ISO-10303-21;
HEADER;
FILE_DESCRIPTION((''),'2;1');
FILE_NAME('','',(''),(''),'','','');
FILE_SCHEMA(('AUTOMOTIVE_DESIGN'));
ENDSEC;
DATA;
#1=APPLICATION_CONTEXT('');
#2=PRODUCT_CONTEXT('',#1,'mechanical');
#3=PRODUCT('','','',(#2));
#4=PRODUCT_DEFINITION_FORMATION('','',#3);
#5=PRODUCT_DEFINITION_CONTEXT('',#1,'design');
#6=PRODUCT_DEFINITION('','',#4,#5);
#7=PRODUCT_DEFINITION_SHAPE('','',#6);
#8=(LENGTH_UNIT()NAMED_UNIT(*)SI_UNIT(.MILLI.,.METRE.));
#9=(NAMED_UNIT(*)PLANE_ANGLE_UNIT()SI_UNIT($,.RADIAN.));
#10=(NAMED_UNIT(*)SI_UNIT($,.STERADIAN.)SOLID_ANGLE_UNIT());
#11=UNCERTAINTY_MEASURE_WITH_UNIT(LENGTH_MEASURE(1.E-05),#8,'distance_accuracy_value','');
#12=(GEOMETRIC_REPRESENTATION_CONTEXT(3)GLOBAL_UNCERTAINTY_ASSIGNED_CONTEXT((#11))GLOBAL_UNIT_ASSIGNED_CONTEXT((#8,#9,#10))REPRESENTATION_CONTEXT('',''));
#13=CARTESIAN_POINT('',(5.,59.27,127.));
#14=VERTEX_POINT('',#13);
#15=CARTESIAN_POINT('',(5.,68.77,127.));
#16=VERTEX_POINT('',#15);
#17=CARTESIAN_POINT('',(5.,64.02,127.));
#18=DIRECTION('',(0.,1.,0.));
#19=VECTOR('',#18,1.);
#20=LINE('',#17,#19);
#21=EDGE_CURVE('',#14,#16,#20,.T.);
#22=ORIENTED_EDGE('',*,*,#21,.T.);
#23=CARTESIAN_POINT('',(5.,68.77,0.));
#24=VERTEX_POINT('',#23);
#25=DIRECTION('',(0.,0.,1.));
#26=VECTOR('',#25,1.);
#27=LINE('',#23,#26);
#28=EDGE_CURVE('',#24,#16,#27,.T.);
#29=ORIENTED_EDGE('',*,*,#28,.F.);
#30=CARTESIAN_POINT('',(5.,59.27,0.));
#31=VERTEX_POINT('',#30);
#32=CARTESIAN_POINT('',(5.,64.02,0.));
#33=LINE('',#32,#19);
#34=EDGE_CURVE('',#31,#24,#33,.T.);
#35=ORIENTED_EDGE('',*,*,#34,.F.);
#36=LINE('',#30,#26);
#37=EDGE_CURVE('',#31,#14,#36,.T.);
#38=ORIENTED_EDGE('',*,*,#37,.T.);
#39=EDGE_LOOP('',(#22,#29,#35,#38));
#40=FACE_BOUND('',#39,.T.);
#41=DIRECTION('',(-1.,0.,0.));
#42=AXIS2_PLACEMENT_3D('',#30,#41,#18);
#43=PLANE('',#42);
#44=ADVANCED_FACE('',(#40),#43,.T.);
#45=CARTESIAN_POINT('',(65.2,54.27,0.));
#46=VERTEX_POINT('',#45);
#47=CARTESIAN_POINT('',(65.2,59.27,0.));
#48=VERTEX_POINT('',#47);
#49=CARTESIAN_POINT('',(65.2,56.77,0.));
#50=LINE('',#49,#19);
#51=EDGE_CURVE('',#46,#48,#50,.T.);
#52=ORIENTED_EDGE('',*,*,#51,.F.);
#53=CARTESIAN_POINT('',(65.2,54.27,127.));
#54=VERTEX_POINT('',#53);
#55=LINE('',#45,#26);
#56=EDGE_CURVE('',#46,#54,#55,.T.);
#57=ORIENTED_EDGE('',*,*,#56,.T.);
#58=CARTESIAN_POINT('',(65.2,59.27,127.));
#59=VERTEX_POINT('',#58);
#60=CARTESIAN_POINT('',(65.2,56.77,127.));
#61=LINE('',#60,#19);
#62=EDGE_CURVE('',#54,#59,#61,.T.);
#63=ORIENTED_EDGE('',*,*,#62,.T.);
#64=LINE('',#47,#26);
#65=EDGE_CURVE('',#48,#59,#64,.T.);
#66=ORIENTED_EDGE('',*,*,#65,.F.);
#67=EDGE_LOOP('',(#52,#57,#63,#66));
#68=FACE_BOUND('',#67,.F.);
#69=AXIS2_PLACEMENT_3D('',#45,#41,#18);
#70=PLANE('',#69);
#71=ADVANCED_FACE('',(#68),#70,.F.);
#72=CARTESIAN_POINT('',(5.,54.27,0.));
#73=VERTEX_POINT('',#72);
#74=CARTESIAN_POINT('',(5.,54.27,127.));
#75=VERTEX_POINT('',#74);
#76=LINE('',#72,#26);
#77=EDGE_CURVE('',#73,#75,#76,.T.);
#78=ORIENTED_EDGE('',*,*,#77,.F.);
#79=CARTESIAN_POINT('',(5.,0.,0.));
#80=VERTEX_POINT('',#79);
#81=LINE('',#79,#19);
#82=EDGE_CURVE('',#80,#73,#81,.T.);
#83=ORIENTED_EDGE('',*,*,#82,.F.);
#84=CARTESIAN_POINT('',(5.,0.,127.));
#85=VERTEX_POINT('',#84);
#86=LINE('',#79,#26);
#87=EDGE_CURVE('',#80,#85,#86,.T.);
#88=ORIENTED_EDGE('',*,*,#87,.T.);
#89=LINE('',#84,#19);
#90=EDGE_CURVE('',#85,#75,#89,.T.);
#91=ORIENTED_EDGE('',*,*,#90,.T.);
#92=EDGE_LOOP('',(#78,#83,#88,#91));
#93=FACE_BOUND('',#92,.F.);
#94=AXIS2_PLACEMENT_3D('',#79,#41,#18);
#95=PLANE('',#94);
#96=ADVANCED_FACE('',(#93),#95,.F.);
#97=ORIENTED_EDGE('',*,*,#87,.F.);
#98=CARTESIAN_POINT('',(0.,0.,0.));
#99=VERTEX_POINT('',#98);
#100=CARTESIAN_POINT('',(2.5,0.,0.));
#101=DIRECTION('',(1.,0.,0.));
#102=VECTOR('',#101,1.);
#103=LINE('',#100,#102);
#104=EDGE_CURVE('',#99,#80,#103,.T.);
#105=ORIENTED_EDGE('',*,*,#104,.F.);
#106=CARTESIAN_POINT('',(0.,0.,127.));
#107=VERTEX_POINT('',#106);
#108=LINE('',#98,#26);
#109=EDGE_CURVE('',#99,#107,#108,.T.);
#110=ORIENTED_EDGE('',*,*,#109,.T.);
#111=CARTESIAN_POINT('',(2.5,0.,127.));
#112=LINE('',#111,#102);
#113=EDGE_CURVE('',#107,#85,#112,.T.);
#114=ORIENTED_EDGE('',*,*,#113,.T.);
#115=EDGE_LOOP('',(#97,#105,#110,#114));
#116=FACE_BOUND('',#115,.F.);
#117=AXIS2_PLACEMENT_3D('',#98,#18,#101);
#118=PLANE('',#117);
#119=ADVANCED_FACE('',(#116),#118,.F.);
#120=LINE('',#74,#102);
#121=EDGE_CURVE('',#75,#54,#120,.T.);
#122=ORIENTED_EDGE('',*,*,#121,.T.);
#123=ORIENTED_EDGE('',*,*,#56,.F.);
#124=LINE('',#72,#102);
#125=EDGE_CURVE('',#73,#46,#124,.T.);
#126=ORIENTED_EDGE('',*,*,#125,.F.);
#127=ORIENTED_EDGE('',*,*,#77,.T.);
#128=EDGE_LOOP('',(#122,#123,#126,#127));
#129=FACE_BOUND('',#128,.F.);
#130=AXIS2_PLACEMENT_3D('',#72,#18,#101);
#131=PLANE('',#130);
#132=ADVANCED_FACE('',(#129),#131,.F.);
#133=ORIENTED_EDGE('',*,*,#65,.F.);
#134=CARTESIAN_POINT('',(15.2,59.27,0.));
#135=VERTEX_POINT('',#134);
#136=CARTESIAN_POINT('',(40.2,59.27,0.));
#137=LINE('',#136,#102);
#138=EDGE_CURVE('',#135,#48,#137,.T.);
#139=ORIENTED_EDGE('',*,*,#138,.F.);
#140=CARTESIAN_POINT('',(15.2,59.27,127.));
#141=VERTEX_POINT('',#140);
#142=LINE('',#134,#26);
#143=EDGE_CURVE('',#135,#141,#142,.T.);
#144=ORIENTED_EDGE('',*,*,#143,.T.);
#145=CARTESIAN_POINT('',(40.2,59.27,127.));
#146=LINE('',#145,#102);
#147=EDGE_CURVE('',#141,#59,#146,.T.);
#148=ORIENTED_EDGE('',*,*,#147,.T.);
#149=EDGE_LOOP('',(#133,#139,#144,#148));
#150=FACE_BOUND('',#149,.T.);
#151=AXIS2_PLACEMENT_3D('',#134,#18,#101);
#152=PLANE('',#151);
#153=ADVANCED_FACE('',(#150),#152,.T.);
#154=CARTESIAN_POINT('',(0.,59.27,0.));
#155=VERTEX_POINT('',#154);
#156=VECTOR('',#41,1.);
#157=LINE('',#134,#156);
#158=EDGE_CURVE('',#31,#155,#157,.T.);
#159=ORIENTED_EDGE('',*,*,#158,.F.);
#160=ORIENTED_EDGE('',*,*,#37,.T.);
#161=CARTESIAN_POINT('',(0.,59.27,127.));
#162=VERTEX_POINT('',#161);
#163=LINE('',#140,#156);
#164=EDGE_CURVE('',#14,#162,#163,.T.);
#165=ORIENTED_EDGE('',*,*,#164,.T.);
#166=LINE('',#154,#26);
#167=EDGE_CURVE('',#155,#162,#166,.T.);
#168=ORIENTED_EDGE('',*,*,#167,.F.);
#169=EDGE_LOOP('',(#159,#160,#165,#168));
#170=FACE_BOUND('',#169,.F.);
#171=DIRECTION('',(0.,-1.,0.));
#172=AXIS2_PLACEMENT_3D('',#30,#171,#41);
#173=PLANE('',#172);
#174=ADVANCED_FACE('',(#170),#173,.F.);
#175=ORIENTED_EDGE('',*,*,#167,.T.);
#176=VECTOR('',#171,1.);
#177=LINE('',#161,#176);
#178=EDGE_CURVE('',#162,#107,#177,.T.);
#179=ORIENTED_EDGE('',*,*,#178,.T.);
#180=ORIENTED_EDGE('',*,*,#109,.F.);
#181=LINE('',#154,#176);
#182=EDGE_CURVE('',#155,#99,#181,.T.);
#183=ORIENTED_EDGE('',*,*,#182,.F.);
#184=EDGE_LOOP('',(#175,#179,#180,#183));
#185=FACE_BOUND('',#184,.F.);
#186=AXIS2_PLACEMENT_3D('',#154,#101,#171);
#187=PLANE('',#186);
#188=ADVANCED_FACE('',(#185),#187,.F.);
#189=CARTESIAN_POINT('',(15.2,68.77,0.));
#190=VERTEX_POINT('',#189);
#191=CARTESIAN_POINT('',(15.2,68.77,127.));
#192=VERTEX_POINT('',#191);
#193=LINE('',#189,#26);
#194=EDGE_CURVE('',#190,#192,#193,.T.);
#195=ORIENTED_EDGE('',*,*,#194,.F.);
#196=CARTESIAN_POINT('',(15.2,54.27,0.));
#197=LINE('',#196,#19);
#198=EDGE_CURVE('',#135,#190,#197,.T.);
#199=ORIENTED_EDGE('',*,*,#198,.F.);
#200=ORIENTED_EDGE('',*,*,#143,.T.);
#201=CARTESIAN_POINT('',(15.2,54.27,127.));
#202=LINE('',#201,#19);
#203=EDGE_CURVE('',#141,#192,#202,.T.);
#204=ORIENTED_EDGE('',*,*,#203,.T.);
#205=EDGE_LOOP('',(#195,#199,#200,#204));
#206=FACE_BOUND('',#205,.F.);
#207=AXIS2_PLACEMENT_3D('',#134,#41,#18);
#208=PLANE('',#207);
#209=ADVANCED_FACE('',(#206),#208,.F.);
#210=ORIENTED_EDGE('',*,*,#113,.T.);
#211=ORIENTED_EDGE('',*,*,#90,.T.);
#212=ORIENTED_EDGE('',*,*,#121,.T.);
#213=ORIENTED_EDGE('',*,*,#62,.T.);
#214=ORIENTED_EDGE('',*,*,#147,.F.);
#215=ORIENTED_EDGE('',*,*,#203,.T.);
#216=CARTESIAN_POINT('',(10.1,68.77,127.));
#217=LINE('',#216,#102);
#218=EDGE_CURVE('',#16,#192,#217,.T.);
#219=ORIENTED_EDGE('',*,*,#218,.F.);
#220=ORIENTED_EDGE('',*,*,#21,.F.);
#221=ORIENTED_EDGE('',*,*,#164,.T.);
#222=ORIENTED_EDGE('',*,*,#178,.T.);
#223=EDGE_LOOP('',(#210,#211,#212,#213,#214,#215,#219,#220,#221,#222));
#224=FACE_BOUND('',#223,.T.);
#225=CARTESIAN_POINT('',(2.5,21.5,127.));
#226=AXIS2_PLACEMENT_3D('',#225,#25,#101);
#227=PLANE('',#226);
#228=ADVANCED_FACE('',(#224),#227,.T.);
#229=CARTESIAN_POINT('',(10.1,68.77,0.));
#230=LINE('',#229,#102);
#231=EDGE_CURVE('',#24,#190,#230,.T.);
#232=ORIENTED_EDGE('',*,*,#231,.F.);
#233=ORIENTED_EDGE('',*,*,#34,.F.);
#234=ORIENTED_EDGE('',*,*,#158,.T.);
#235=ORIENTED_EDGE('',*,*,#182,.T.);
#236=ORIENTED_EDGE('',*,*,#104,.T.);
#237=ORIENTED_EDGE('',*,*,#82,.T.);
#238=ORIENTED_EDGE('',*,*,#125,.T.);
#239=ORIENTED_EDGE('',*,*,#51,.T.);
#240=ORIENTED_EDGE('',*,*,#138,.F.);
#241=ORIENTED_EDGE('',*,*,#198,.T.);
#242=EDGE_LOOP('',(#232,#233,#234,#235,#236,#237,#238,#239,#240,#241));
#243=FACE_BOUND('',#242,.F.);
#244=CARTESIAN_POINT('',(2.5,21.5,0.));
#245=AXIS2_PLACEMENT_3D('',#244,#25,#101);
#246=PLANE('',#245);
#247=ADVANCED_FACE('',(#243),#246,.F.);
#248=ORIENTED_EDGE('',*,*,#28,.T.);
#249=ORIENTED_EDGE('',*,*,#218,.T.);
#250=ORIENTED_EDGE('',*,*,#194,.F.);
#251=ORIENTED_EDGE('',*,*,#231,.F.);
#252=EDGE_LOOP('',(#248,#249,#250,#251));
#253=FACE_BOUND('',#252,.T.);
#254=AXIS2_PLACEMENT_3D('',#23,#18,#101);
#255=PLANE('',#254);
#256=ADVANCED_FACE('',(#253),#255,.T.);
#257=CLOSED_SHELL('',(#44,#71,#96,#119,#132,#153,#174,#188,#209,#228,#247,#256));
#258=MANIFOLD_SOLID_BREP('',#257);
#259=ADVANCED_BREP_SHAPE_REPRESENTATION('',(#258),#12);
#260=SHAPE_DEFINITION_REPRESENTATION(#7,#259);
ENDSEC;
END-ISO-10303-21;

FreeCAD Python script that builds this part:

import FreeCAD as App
import Part
import Sketcher
Q = App.Units.Quantity

doc = App.newDocument("Part")
body = doc.addObject("PartDesign::Body", "Body")

sketch1 = doc.addObject("Sketcher::SketchObject", "Sketch")
body.addObject(sketch1)
sketch1.AttachmentSupport = (doc.XY_Plane, [""])
sketch1.MapMode = "FlatFace"
sketch1.addGeometry(Part.LineSegment(App.Vector(0, 0, 0), App.Vector(5, 0, 0)), False)
sketch1.addGeometry(Part.LineSegment(App.Vector(5, 0, 0), App.Vector(5, 54, 0)), False)
sketch1.addGeometry(Part.LineSegment(App.Vector(5, 54, 0), App.Vector(65, 54, 0)), False)
sketch1.addGeometry(Part.LineSegment(App.Vector(65, 54, 0), App.Vector(65, 59, 0)), False)
sketch1.addGeometry(Part.LineSegment(App.Vector(65, 59, 0), App.Vector(15, 59, 0)), False)
sketch1.addGeometry(Part.LineSegment(App.Vector(15, 59, 0), App.Vector(15, 69, 0)), False)
sketch1.addGeometry(Part.LineSegment(App.Vector(15, 69, 0), App.Vector(5, 69, 0)), False)
sketch1.addGeometry(Part.LineSegment(App.Vector(5, 69, 0), App.Vector(5, 59, 0)), False)
sketch1.addGeometry(Part.LineSegment(App.Vector(5, 59, 0), App.Vector(0, 59, 0)), False)
sketch1.addGeometry(Part.LineSegment(App.Vector(0, 59, 0), App.Vector(0, 0, 0)), False)
sketch1.addConstraint(Sketcher.Constraint("Coincident", 0, 2, 1, 1))
sketch1.addConstraint(Sketcher.Constraint("Coincident", 1, 2, 2, 1))
sketch1.addConstraint(Sketcher.Constraint("Coincident", 2, 2, 3, 1))
sketch1.addConstraint(Sketcher.Constraint("Coincident", 3, 2, 4, 1))
sketch1.addConstraint(Sketcher.Constraint("Coincident", 4, 2, 5, 1))
sketch1.addConstraint(Sketcher.Constraint("Coincident", 5, 2, 6, 1))
sketch1.addConstraint(Sketcher.Constraint("Coincident", 6, 2, 7, 1))
sketch1.addConstraint(Sketcher.Constraint("Coincident", 7, 2, 8, 1))
sketch1.addConstraint(Sketcher.Constraint("Coincident", 8, 2, 9, 1))
sketch1.addConstraint(Sketcher.Constraint("Coincident", 9, 2, 0, 1))
sketch1.addConstraint(Sketcher.Constraint("Horizontal", 0))
sketch1.addConstraint(Sketcher.Constraint("Vertical", 1))
sketch1.addConstraint(Sketcher.Constraint("Horizontal", 2))
sketch1.addConstraint(Sketcher.Constraint("Vertical", 3))
sketch1.addConstraint(Sketcher.Constraint("Horizontal", 4))
sketch1.addConstraint(Sketcher.Constraint("Vertical", 5))
sketch1.addConstraint(Sketcher.Constraint("Horizontal", 6))
sketch1.addConstraint(Sketcher.Constraint("Vertical", 7))
sketch1.addConstraint(Sketcher.Constraint("Horizontal", 8))
sketch1.addConstraint(Sketcher.Constraint("Vertical", 9))
sketch1.addConstraint(Sketcher.Constraint("Coincident", 9, 2, -1, 1))
sketch1.addConstraint(Sketcher.Constraint("Horizontal", 4, 2, 7, 2))
sketch1.addConstraint(Sketcher.Constraint("Vertical", 1, 2, 6, 2))
sketch1.addConstraint(Sketcher.Constraint("Equal", 8, 3))
sketch1.addConstraint(Sketcher.Constraint("DistanceX", 0, 1, 0, 2, Q("5 mm")))
sketch1.addConstraint(Sketcher.Constraint("DistanceX", 4, 2, 4, 1, Q("50 mm")))
sketch1.addConstraint(Sketcher.Constraint("DistanceX", 2, 1, 2, 2, Q("60.2 mm")))
sketch1.addConstraint(Sketcher.Constraint("DistanceY", 5, 1, 5, 2, Q("9.5 mm")))
sketch1.addConstraint(Sketcher.Constraint("DistanceY", 1, 1, 1, 2, Q("54.27 mm")))
pad1 = doc.addObject("PartDesign::Pad", "Pad")
body.addObject(pad1)
pad1.Profile = sketch1
pad1.Length = 127

doc.recompute()
